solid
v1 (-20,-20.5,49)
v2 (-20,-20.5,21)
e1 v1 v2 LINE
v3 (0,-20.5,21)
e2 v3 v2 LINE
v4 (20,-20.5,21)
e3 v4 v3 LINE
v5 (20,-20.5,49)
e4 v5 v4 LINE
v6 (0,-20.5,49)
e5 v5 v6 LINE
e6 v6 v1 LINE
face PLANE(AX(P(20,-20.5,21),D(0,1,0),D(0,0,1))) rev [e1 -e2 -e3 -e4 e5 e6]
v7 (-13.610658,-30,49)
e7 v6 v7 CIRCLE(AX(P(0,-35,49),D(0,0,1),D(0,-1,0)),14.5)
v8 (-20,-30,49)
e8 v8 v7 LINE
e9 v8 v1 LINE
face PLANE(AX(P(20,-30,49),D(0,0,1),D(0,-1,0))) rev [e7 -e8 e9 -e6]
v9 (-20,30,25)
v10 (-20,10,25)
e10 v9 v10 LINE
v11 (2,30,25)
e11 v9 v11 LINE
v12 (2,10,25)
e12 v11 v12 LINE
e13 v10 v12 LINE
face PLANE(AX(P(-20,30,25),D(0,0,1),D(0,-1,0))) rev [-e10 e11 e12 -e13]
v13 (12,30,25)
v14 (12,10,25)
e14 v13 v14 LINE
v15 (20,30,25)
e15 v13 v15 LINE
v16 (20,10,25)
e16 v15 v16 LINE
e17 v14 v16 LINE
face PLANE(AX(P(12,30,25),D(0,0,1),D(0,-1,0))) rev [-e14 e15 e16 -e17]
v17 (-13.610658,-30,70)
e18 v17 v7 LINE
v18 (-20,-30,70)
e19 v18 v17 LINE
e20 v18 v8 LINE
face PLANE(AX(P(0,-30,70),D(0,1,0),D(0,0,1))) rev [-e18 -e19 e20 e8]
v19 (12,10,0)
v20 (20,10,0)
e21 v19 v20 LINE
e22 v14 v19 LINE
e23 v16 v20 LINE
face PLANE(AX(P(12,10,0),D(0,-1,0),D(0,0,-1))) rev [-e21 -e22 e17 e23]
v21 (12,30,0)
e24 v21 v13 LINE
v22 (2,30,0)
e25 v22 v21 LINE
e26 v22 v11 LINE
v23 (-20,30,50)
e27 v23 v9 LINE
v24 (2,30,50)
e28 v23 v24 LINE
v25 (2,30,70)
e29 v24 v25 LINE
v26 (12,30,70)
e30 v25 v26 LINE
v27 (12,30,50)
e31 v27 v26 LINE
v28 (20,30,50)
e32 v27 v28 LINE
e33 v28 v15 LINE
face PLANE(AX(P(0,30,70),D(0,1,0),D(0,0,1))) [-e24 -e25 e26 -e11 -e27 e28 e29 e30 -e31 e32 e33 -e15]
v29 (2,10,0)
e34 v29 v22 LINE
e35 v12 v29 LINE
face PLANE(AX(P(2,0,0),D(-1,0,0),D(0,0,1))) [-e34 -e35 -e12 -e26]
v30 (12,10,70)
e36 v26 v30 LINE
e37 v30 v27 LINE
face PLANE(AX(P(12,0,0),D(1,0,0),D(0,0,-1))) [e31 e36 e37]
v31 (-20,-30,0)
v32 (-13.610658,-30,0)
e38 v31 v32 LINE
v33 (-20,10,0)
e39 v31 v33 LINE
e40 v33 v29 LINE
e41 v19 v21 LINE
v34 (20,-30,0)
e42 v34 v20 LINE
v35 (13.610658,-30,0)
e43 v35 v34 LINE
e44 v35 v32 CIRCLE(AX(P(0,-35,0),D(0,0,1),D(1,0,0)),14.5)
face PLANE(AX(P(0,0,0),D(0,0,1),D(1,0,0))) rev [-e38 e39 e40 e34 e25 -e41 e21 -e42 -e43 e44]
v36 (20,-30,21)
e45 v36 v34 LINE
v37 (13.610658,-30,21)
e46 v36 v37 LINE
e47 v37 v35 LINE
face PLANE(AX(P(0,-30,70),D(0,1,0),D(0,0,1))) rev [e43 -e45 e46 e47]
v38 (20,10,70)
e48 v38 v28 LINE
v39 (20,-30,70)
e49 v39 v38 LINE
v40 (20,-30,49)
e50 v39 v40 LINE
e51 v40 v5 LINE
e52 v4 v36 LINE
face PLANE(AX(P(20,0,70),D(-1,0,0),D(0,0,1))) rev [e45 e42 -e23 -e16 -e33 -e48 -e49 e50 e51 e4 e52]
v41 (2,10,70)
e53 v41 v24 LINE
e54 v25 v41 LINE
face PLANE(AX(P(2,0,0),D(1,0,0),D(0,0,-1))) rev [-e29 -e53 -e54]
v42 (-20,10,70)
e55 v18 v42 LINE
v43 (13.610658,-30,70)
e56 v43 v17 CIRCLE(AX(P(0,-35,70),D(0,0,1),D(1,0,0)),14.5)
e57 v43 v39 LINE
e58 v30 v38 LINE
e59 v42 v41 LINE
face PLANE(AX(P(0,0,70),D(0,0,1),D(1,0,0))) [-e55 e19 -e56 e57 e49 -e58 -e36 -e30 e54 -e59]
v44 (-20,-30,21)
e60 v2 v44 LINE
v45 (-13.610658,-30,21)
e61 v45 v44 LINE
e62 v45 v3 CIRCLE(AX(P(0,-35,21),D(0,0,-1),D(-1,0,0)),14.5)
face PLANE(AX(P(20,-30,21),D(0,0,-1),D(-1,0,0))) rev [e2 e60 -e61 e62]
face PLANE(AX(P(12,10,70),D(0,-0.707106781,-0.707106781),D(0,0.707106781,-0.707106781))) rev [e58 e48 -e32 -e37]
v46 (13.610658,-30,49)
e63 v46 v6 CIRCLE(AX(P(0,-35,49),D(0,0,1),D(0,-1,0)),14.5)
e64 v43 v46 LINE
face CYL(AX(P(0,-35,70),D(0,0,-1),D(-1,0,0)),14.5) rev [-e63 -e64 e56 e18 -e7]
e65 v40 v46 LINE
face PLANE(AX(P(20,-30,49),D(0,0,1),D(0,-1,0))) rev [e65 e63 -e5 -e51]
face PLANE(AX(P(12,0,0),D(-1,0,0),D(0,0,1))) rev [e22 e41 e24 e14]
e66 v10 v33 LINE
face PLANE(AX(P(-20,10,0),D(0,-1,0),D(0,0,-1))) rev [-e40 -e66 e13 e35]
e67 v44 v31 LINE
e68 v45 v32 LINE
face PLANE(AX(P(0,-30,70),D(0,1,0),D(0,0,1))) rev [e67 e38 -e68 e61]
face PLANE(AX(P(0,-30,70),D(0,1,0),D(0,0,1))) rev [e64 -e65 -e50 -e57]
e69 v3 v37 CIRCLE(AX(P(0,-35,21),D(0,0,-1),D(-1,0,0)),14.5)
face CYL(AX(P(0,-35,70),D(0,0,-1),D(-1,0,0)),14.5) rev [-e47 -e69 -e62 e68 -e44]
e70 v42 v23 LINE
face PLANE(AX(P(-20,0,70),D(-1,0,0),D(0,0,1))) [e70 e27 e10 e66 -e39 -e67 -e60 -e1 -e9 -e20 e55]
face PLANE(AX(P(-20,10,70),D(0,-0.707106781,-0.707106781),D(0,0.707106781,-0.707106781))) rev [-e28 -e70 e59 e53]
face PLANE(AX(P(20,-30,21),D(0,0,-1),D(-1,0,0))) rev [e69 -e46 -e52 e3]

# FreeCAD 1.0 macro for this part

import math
import FreeCAD as App
import Part
import Sketcher
from FreeCAD import Vector
Q = App.Units.Quantity


def add_polygon(sketch, points):
    """Adds a closed chain of lines whose ends are joined by coincident constraints."""
    first, n = sketch.GeometryCount, len(points)
    for a, b in zip(points, points[1:] + points[:1]):
        sketch.addGeometry(Part.LineSegment(App.Vector(*a, 0), App.Vector(*b, 0)), False)
    for i in range(n):
        sketch.addConstraint(Sketcher.Constraint("Coincident", first + i, 2, first + (i + 1) % n, 1))

doc = App.newDocument("Part")
body = doc.addObject("PartDesign::Body", "Body")

# Sketch on XY plane
sketch1 = body.newObject("Sketcher::SketchObject", "Sketch")
sketch1.AttachmentSupport = (doc.getObject("XY_Plane"), [""])
sketch1.MapMode = "FlatFace"
sketch1.addGeometry([
    Part.LineSegment(Vector(-20, -30, 0), Vector(-14, -30, 0)),  # 0
    Part.ArcOfCircle(Part.Circle(Vector(0, -35, 0), Vector(0, 0, 1), 14), math.radians(20), math.radians(160)),  # 1
    Part.LineSegment(Vector(14, -30, 0), Vector(20, -30, 0)),  # 2
    Part.LineSegment(Vector(20, -30, 0), Vector(20, 30, 0)),  # 3
    Part.LineSegment(Vector(20, 30, 0), Vector(-20, 30, 0)),  # 4
    Part.LineSegment(Vector(-20, 30, 0), Vector(-20, -30, 0)),  # 5
], False)
sketch1.addConstraint([
    Sketcher.Constraint("Coincident", 0, 2, 1, 2),
    Sketcher.Constraint("Coincident", 1, 1, 2, 1),
    Sketcher.Constraint("Coincident", 2, 2, 3, 1),
    Sketcher.Constraint("Coincident", 3, 2, 4, 1),
    Sketcher.Constraint("Coincident", 4, 2, 5, 1),
    Sketcher.Constraint("Coincident", 5, 2, 0, 1),
    Sketcher.Constraint("Horizontal", 0),
    Sketcher.Constraint("Horizontal", 2),
    Sketcher.Constraint("Vertical", 3),
    Sketcher.Constraint("Horizontal", 4),
    Sketcher.Constraint("Vertical", 5),
    Sketcher.Constraint("Symmetric", 2, 2, 4, 2, -1, 1),
    Sketcher.Constraint("Symmetric", 0, 2, 1, 1, -2),
    Sketcher.Constraint("Radius", 1, Q("14.5 mm")),
    Sketcher.Constraint("DistanceX", 4, 2, 4, 1, Q("40 mm")),
    Sketcher.Constraint("DistanceY", 3, 1, 3, 2, Q("60 mm")),
    Sketcher.Constraint("DistanceY", 1, 3, -1, 1, Q("35 mm")),
])
pad1 = body.newObject("PartDesign::Pad", "Pad")
pad1.Profile = sketch1
pad1.Length = 70

# Sketch on YZ plane
sketch2 = body.newObject("Sketcher::SketchObject", "Sketch001")
sketch2.AttachmentSupport = (doc.getObject("YZ_Plane"), [""])
sketch2.MapMode = "FlatFace"
sketch2.AttachmentOffset = App.Placement(Vector(0, 0, -20), App.Rotation())
add_polygon(sketch2, [(-20, 21), (-30, 21), (-30, 49), (-20, 49)])  # lines 0-3
sketch2.addConstraint([
    Sketcher.Constraint("Horizontal", 0),
    Sketcher.Constraint("Vertical", 1),
    Sketcher.Constraint("Horizontal", 2),
    Sketcher.Constraint("Vertical", 3),
    Sketcher.Constraint("DistanceY", 1, 1, 1, 2, Q("28 mm")),
    Sketcher.Constraint("DistanceX", 0, 2, 0, 1, Q("9.5 mm")),
    Sketcher.Constraint("DistanceX", 0, 2, -1, 1, Q("30 mm")),
    Sketcher.Constraint("DistanceY", -1, 1, 0, 2, Q("21 mm")),
])
pocket1 = body.newObject("PartDesign::Pocket", "Pocket")
pocket1.Profile = sketch2
pocket1.Type = "ThroughAll"
pocket1.Reversed = True

# Sketch on YZ plane
sketch3 = body.newObject("Sketcher::SketchObject", "Sketch002")
sketch3.AttachmentSupport = (doc.getObject("YZ_Plane"), [""])
sketch3.MapMode = "FlatFace"
sketch3.AttachmentOffset = App.Placement(Vector(0, 0, 20), App.Rotation())
add_polygon(sketch3, [(30, 70), (10, 70), (30, 50)])  # lines 0-2
add_polygon(sketch3, [(30, 25), (10, 25), (10, 0), (30, 0)])  # lines 3-6
sketch3.addConstraint([
    Sketcher.Constraint("Horizontal", 0),
    Sketcher.Constraint("Vertical", 2),
    Sketcher.Constraint("Horizontal", 3),
    Sketcher.Constraint("Vertical", 4),
    Sketcher.Constraint("Horizontal", 5),
    Sketcher.Constraint("Vertical", 6),
    Sketcher.Constraint("PointOnObject", 4, 2, -1),
    Sketcher.Constraint("Vertical", 0, 2, 3, 2),
    Sketcher.Constraint("Vertical", 2, 2, 5, 2),
    Sketcher.Constraint("Equal", 5, 2),
    Sketcher.Constraint("DistanceX", 0, 2, 0, 1, Q("20 mm")),
    Sketcher.Constraint("DistanceY", 4, 2, 4, 1, Q("25 mm")),
    Sketcher.Constraint("DistanceX", -1, 1, 0, 2, Q("10 mm")),
    Sketcher.Constraint("DistanceY", -1, 1, 0, 2, Q("70 mm")),
])
pocket2 = body.newObject("PartDesign::Pocket", "Pocket001")
pocket2.Profile = sketch3
pocket2.Length = 8

# Sketch on YZ plane
sketch4 = body.newObject("Sketcher::SketchObject", "Sketch003")
sketch4.AttachmentSupport = (doc.getObject("YZ_Plane"), [""])
sketch4.MapMode = "FlatFace"
sketch4.AttachmentOffset = App.Placement(Vector(0, 0, 2), App.Rotation())
add_polygon(sketch4, [(30, 70), (10, 70), (30, 50)])  # lines 0-2
add_polygon(sketch4, [(30, 25), (10, 25), (10, 0), (30, 0)])  # lines 3-6
sketch4.addConstraint([
    Sketcher.Constraint("Horizontal", 0),
    Sketcher.Constraint("Vertical", 2),
    Sketcher.Constraint("Horizontal", 3),
    Sketcher.Constraint("Vertical", 4),
    Sketcher.Constraint("Horizontal", 5),
    Sketcher.Constraint("Vertical", 6),
    Sketcher.Constraint("PointOnObject", 4, 2, -1),
    Sketcher.Constraint("Vertical", 0, 2, 3, 2),
    Sketcher.Constraint("Vertical", 2, 2, 5, 2),
    Sketcher.Constraint("Equal", 5, 2),
    Sketcher.Constraint("DistanceX", 0, 2, 0, 1, Q("20 mm")),
    Sketcher.Constraint("DistanceY", 4, 2, 4, 1, Q("25 mm")),
    Sketcher.Constraint("DistanceX", -1, 1, 0, 2, Q("10 mm")),
    Sketcher.Constraint("DistanceY", -1, 1, 0, 2, Q("70 mm")),
])
pocket3 = body.newObject("PartDesign::Pocket", "Pocket002")
pocket3.Profile = sketch4
pocket3.Type = "ThroughAll"

doc.recompute()
